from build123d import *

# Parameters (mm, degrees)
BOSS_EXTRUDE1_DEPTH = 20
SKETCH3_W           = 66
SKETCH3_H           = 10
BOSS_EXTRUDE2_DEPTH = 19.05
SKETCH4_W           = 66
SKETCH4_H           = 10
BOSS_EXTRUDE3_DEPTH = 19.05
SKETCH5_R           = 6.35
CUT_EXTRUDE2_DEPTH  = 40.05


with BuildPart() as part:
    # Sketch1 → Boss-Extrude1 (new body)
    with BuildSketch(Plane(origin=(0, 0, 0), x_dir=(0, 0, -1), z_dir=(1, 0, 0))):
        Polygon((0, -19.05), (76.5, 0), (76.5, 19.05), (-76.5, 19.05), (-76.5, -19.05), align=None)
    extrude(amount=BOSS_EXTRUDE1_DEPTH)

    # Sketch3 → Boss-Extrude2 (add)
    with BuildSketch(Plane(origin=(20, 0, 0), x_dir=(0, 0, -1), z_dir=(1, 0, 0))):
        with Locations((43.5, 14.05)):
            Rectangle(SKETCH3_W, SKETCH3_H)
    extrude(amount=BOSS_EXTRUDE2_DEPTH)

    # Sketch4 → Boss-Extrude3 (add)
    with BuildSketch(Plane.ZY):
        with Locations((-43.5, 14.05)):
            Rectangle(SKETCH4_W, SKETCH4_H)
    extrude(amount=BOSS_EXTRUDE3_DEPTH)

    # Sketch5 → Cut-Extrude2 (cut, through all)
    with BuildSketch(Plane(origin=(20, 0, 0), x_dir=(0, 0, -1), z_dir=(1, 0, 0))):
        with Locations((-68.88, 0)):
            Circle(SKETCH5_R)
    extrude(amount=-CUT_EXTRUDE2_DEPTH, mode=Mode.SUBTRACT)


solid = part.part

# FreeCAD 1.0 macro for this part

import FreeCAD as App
import Part
import Sketcher


def add_polygon(sketch, points):
    """Adds a closed chain of lines whose ends are joined by coincident constraints."""
    first, n = sketch.GeometryCount, len(points)
    for a, b in zip(points, points[1:] + points[:1]):
        sketch.addGeometry(Part.LineSegment(App.Vector(*a, 0), App.Vector(*b, 0)), False)
    for i in range(n):
        sketch.addConstraint(Sketcher.Constraint("Coincident", first + i, 2, first + (i + 1) % n, 1))

doc = App.newDocument("Part")
body = doc.addObject("PartDesign::Body", "Body")

# Sketch on YZ plane
sketch1 = doc.addObject("Sketcher::SketchObject", "Sketch")
body.addObject(sketch1)
sketch1.AttachmentSupport = (doc.YZ_Plane, [""])
sketch1.MapMode = "FlatFace"
add_polygon(sketch1, [(-19, 0), (0, -76), (19, -76), (19, 76), (-19, 76)])  # lines 0-4
sketch1.addConstraint([
    Sketcher.Constraint("Horizontal", 1),
    Sketcher.Constraint("Vertical", 2),
    Sketcher.Constraint("Horizontal", 3),
    Sketcher.Constraint("Vertical", 4),
    Sketcher.Constraint("Symmetric", 1, 2, 3, 2, -1, 1),
    Sketcher.Constraint("PointOnObject", 0, 2, -2),
    Sketcher.Constraint("PointOnObject", 4, 2, -1),
    Sketcher.Constraint("DistanceY", 2, 1, 2, 2, 153.0),
    Sketcher.Constraint("DistanceX", 3, 2, 3, 1, 38.1),
])
pad1 = doc.addObject("PartDesign::Pad", "Pad")
body.addObject(pad1)
pad1.Profile = sketch1
pad1.Length = 20

# Sketch on YZ plane
sketch2 = doc.addObject("Sketcher::SketchObject", "Sketch001")
body.addObject(sketch2)
sketch2.AttachmentSupport = (doc.YZ_Plane, [""])
sketch2.MapMode = "FlatFace"
sketch2.AttachmentOffset = App.Placement(App.Vector(0, 0, 20), App.Rotation())
add_polygon(sketch2, [(19, -10), (9, -10), (9, -76), (19, -76)])  # lines 0-3
sketch2.addConstraint([
    Sketcher.Constraint("Horizontal", 0),
    Sketcher.Constraint("Vertical", 1),
    Sketcher.Constraint("Horizontal", 2),
    Sketcher.Constraint("Vertical", 3),
    Sketcher.Constraint("DistanceX", 0, 2, 0, 1, 10.0),
    Sketcher.Constraint("DistanceY", 1, 2, 1, 1, 66.0),
    Sketcher.Constraint("DistanceY", 0, 2, -1, 1, 10.5),
    Sketcher.Constraint("DistanceX", -1, 1, 0, 2, 9.05),
])
pad2 = doc.addObject("PartDesign::Pad", "Pad001")
body.addObject(pad2)
pad2.Profile = sketch2
pad2.Length = 19.05

# Sketch on YZ plane
sketch3 = doc.addObject("Sketcher::SketchObject", "Sketch002")
body.addObject(sketch3)
sketch3.AttachmentSupport = (doc.YZ_Plane, [""])
sketch3.MapMode = "FlatFace"
add_polygon(sketch3, [(19, -76), (9, -76), (9, -10), (19, -10)])  # lines 0-3
sketch3.addConstraint([
    Sketcher.Constraint("Horizontal", 0),
    Sketcher.Constraint("Vertical", 1),
    Sketcher.Constraint("Horizontal", 2),
    Sketcher.Constraint("Vertical", 3),
    Sketcher.Constraint("DistanceX", 0, 2, 0, 1, 10.0),
    Sketcher.Constraint("DistanceY", 1, 1, 1, 2, 66.0),
    Sketcher.Constraint("DistanceY", 0, 2, -1, 1, 76.5),
    Sketcher.Constraint("DistanceX", -1, 1, 0, 2, 9.05),
])
pad3 = doc.addObject("PartDesign::Pad", "Pad002")
body.addObject(pad3)
pad3.Profile = sketch3
pad3.Length = 19.05
pad3.Reversed = True

# Sketch on YZ plane
sketch4 = doc.addObject("Sketcher::SketchObject", "Sketch003")
body.addObject(sketch4)
sketch4.AttachmentSupport = (doc.YZ_Plane, [""])
sketch4.MapMode = "FlatFace"
sketch4.AttachmentOffset = App.Placement(App.Vector(0, 0, 20), App.Rotation())
sketch4.addGeometry(Part.Circle(App.Vector(0, 69, 0), App.Vector(0, 0, 1), 6), False)
sketch4.addConstraint([
    Sketcher.Constraint("PointOnObject", 0, 3, -2),
    Sketcher.Constraint("Diameter", 0, 12.7),
    Sketcher.Constraint("DistanceY", -1, 1, 0, 3, 68.88),
])
pocket1 = doc.addObject("PartDesign::Pocket", "Pocket")
body.addObject(pocket1)
pocket1.Profile = sketch4
pocket1.Type = "ThroughAll"

doc.recompute()
